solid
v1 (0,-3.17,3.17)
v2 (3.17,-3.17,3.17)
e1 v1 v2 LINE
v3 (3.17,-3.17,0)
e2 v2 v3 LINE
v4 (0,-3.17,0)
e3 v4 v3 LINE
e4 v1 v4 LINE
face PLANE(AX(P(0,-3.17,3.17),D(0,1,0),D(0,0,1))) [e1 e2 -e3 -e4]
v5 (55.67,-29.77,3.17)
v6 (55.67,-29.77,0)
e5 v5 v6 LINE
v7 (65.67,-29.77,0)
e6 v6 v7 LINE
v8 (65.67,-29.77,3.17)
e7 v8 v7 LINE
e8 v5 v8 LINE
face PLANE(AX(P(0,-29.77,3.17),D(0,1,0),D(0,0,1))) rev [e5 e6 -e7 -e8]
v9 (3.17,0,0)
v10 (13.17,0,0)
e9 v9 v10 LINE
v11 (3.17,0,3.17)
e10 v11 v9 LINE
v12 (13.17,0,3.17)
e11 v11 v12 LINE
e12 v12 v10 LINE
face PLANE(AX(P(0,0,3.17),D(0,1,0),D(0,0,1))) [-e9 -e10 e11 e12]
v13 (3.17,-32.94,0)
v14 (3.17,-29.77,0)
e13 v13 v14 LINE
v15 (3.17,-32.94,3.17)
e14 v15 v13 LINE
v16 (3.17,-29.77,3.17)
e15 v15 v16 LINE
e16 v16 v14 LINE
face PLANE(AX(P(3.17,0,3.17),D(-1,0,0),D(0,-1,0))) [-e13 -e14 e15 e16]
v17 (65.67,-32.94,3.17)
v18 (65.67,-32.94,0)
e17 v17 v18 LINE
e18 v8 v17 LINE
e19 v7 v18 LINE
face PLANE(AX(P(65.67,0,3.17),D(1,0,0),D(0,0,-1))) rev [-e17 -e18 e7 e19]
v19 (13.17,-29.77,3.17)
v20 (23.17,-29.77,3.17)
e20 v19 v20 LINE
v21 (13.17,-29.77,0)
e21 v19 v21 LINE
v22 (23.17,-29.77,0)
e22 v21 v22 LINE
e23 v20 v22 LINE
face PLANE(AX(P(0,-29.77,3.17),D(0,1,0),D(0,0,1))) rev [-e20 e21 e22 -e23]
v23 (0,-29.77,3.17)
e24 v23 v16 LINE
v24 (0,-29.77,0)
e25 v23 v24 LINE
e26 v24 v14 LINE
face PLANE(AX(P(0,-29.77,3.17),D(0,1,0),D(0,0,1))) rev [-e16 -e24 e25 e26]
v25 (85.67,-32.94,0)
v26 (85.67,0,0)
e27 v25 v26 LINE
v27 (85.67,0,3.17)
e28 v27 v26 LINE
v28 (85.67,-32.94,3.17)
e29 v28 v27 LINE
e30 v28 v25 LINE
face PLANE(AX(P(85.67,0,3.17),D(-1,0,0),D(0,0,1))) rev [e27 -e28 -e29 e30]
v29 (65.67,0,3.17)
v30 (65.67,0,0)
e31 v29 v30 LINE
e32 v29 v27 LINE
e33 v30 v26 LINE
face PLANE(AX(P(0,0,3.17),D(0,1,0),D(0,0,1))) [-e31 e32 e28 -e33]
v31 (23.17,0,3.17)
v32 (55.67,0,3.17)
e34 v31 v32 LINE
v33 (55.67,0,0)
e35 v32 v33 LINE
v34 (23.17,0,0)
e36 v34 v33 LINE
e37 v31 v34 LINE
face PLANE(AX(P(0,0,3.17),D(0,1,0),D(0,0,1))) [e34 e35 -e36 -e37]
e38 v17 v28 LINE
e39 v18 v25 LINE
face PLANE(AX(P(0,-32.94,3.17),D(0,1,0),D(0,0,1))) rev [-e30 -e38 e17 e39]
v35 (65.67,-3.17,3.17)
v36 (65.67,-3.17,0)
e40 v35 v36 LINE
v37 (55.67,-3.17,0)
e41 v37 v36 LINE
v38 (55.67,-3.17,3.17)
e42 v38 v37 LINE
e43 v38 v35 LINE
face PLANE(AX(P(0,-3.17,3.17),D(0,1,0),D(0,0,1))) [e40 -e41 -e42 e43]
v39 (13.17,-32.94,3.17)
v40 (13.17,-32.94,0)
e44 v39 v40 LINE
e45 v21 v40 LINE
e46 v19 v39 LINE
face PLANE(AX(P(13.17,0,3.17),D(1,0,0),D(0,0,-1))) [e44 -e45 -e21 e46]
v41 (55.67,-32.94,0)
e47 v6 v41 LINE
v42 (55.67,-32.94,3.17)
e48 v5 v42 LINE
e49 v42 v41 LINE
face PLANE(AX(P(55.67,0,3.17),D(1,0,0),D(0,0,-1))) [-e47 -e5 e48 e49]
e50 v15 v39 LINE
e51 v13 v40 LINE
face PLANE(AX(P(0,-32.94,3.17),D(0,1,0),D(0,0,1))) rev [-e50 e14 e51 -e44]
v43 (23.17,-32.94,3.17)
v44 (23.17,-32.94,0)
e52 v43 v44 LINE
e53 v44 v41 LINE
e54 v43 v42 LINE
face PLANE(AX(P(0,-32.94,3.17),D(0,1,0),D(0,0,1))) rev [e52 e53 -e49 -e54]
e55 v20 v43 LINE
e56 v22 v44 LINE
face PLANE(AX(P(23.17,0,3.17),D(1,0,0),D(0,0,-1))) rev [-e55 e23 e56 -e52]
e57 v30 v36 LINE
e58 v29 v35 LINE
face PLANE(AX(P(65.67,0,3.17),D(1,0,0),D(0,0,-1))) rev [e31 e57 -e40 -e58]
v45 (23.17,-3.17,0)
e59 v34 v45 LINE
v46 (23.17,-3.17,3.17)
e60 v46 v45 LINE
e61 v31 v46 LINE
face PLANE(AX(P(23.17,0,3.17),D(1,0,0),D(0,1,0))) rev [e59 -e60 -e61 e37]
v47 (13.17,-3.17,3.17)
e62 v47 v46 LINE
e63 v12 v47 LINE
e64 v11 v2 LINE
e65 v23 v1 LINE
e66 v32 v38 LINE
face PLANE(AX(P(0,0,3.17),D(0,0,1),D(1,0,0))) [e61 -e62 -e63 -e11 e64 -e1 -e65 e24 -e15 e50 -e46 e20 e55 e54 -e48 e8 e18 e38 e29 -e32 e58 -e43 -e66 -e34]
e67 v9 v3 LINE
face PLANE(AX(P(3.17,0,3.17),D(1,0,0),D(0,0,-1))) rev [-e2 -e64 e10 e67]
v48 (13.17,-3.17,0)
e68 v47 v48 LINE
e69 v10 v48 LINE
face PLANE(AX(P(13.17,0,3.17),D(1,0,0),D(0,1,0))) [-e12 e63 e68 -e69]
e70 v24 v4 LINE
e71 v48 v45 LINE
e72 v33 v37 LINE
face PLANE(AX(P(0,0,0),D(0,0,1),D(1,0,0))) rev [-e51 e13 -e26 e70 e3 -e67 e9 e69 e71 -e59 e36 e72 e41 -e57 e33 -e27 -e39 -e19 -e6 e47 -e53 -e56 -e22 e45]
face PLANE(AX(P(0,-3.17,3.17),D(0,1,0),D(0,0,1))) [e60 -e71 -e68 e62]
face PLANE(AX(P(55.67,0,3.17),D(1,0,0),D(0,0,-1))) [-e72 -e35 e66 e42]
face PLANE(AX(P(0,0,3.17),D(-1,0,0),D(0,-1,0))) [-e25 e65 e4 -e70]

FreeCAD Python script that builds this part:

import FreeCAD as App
import Part
import Sketcher

V = App.Vector


def add_polygon(sketch, points):
    """Adds a closed chain of lines whose ends are joined by coincident constraints."""
    first, n = sketch.GeometryCount, len(points)
    for a, b in zip(points, points[1:] + points[:1]):
        sketch.addGeometry(Part.LineSegment(App.Vector(*a, 0), App.Vector(*b, 0)), False)
    for i in range(n):
        sketch.addConstraint(Sketcher.Constraint("Coincident", first + i, 2, first + (i + 1) % n, 1))

doc = App.newDocument("Part")
params = doc.addObject("Spreadsheet::Sheet", "Params")
for row, (alias, value) in enumerate([
    ("sketch1_width", "10 mm"),
    ("sketch1_width2", "20 mm"),
    ("sketch1_width3", "32.5 mm"),
    ("sketch1_height", "26.6 mm"),
    ("sketch1_width4", "3.17 mm"),
    ("pad1_length", "3.17 mm"),
], start=1):
    params.set(f"A{row}", alias)
    params.set(f"B{row}", "=" + value)
    params.setAlias(f"B{row}", alias)

body = doc.addObject("PartDesign::Body", "Body")

# Sketch on XY plane
sketch1 = doc.addObject("Sketcher::SketchObject", "Sketch")
body.addObject(sketch1)
sketch1.AttachmentSupport = (doc.XY_Plane, [""])
sketch1.MapMode = "FlatFace"
add_polygon(sketch1, [(55.67, -3.17), (55.67, 0), (23.17, 0), (23.17, -3.17), (13.17, -3.17), (13.17, 0), (3.17, 0), (3.17, -3.17), (0, -3.17), (0, -29.77), (3.17, -29.77), (3.17, -32.94), (13.17, -32.94), (13.17, -29.77), (23.17, -29.77), (23.17, -32.94), (55.67, -32.94), (55.67, -29.77), (65.67, -29.77), (65.67, -32.94), (85.67, -32.94), (85.67, 0), (65.67, 0), (65.67, -3.17)])  # lines 0-23
sketch1.addConstraint(Sketcher.Constraint("Vertical", 0))
sketch1.addConstraint(Sketcher.Constraint("Horizontal", 1))
sketch1.addConstraint(Sketcher.Constraint("Vertical", 2))
sketch1.addConstraint(Sketcher.Constraint("Horizontal", 3))
sketch1.addConstraint(Sketcher.Constraint("Vertical", 4))
sketch1.addConstraint(Sketcher.Constraint("Horizontal", 5))
sketch1.addConstraint(Sketcher.Constraint("Vertical", 6))
sketch1.addConstraint(Sketcher.Constraint("Horizontal", 7))
sketch1.addConstraint(Sketcher.Constraint("Vertical", 8))
sketch1.addConstraint(Sketcher.Constraint("Horizontal", 9))
sketch1.addConstraint(Sketcher.Constraint("Vertical", 10))
sketch1.addConstraint(Sketcher.Constraint("Horizontal", 11))
sketch1.addConstraint(Sketcher.Constraint("Vertical", 12))
sketch1.addConstraint(Sketcher.Constraint("Horizontal", 13))
sketch1.addConstraint(Sketcher.Constraint("Vertical", 14))
sketch1.addConstraint(Sketcher.Constraint("Horizontal", 15))
sketch1.addConstraint(Sketcher.Constraint("Vertical", 16))
sketch1.addConstraint(Sketcher.Constraint("Horizontal", 17))
sketch1.addConstraint(Sketcher.Constraint("Vertical", 18))
sketch1.addConstraint(Sketcher.Constraint("Horizontal", 19))
sketch1.addConstraint(Sketcher.Constraint("Vertical", 20))
sketch1.addConstraint(Sketcher.Constraint("Horizontal", 21))
sketch1.addConstraint(Sketcher.Constraint("Vertical", 22))
sketch1.addConstraint(Sketcher.Constraint("Horizontal", 23))
sketch1.addConstraint(Sketcher.Constraint("PointOnObject", 0, 2, -1))
sketch1.addConstraint(Sketcher.Constraint("PointOnObject", 4, 2, -1))
sketch1.addConstraint(Sketcher.Constraint("PointOnObject", 7, 2, -2))
sketch1.addConstraint(Sketcher.Constraint("PointOnObject", 20, 2, -1))
sketch1.addConstraint(Sketcher.Constraint("Horizontal", 3, 2, 6, 2))
sketch1.addConstraint(Sketcher.Constraint("Horizontal", 9, 2, 12, 2))
sketch1.addConstraint(Sketcher.Constraint("Horizontal", 11, 2, 14, 2))
sketch1.addConstraint(Sketcher.Constraint("Horizontal", 13, 2, 16, 2))
sketch1.addConstraint(Sketcher.Constraint("Horizontal", 15, 2, 18, 2))
sketch1.addConstraint(Sketcher.Constraint("Horizontal", 7, 2, 22, 2))
sketch1.addConstraint(Sketcher.Constraint("Vertical", 6, 2, 9, 2))
sketch1.addConstraint(Sketcher.Constraint("Vertical", 4, 2, 11, 2))
sketch1.addConstraint(Sketcher.Constraint("Vertical", 2, 2, 13, 2))
sketch1.addConstraint(Sketcher.Constraint("Vertical", 0, 2, 15, 2))
sketch1.addConstraint(Sketcher.Constraint("Vertical", 18, 2, 21, 2))
sketch1.addConstraint(Sketcher.Constraint("Equal", 3, 5))
sketch1.addConstraint(Sketcher.Constraint("Equal", 13, 17))
sketch1.addConstraint(Sketcher.Constraint("Equal", 9, 0))
sketch1.addConstraint(Sketcher.Constraint("Equal", 6, 10))
sketch1.addConstraint(Sketcher.Constraint("DistanceX", 3, 2, 3, 1, 10.0))
sketch1.addConstraint(Sketcher.Constraint("DistanceX", 19, 1, 19, 2, 20.0))
sketch1.addConstraint(Sketcher.Constraint("DistanceX", 1, 2, 1, 1, 32.5))
sketch1.addConstraint(Sketcher.Constraint("DistanceY", 8, 2, 8, 1, 26.6))
sketch1.addConstraint(Sketcher.Constraint("DistanceX", 7, 2, 7, 1, 3.17))
sketch1.setExpression("Constraints[67]", "Params.sketch1_width")
sketch1.setExpression("Constraints[68]", "Params.sketch1_width2")
sketch1.setExpression("Constraints[69]", "Params.sketch1_width3")
sketch1.setExpression("Constraints[70]", "Params.sketch1_height")
sketch1.setExpression("Constraints[71]", "Params.sketch1_width4")
pad1 = doc.addObject("PartDesign::Pad", "Pad")
body.addObject(pad1)
pad1.Profile = sketch1
pad1.setExpression("Length", "Params.pad1_length")

doc.recompute()
